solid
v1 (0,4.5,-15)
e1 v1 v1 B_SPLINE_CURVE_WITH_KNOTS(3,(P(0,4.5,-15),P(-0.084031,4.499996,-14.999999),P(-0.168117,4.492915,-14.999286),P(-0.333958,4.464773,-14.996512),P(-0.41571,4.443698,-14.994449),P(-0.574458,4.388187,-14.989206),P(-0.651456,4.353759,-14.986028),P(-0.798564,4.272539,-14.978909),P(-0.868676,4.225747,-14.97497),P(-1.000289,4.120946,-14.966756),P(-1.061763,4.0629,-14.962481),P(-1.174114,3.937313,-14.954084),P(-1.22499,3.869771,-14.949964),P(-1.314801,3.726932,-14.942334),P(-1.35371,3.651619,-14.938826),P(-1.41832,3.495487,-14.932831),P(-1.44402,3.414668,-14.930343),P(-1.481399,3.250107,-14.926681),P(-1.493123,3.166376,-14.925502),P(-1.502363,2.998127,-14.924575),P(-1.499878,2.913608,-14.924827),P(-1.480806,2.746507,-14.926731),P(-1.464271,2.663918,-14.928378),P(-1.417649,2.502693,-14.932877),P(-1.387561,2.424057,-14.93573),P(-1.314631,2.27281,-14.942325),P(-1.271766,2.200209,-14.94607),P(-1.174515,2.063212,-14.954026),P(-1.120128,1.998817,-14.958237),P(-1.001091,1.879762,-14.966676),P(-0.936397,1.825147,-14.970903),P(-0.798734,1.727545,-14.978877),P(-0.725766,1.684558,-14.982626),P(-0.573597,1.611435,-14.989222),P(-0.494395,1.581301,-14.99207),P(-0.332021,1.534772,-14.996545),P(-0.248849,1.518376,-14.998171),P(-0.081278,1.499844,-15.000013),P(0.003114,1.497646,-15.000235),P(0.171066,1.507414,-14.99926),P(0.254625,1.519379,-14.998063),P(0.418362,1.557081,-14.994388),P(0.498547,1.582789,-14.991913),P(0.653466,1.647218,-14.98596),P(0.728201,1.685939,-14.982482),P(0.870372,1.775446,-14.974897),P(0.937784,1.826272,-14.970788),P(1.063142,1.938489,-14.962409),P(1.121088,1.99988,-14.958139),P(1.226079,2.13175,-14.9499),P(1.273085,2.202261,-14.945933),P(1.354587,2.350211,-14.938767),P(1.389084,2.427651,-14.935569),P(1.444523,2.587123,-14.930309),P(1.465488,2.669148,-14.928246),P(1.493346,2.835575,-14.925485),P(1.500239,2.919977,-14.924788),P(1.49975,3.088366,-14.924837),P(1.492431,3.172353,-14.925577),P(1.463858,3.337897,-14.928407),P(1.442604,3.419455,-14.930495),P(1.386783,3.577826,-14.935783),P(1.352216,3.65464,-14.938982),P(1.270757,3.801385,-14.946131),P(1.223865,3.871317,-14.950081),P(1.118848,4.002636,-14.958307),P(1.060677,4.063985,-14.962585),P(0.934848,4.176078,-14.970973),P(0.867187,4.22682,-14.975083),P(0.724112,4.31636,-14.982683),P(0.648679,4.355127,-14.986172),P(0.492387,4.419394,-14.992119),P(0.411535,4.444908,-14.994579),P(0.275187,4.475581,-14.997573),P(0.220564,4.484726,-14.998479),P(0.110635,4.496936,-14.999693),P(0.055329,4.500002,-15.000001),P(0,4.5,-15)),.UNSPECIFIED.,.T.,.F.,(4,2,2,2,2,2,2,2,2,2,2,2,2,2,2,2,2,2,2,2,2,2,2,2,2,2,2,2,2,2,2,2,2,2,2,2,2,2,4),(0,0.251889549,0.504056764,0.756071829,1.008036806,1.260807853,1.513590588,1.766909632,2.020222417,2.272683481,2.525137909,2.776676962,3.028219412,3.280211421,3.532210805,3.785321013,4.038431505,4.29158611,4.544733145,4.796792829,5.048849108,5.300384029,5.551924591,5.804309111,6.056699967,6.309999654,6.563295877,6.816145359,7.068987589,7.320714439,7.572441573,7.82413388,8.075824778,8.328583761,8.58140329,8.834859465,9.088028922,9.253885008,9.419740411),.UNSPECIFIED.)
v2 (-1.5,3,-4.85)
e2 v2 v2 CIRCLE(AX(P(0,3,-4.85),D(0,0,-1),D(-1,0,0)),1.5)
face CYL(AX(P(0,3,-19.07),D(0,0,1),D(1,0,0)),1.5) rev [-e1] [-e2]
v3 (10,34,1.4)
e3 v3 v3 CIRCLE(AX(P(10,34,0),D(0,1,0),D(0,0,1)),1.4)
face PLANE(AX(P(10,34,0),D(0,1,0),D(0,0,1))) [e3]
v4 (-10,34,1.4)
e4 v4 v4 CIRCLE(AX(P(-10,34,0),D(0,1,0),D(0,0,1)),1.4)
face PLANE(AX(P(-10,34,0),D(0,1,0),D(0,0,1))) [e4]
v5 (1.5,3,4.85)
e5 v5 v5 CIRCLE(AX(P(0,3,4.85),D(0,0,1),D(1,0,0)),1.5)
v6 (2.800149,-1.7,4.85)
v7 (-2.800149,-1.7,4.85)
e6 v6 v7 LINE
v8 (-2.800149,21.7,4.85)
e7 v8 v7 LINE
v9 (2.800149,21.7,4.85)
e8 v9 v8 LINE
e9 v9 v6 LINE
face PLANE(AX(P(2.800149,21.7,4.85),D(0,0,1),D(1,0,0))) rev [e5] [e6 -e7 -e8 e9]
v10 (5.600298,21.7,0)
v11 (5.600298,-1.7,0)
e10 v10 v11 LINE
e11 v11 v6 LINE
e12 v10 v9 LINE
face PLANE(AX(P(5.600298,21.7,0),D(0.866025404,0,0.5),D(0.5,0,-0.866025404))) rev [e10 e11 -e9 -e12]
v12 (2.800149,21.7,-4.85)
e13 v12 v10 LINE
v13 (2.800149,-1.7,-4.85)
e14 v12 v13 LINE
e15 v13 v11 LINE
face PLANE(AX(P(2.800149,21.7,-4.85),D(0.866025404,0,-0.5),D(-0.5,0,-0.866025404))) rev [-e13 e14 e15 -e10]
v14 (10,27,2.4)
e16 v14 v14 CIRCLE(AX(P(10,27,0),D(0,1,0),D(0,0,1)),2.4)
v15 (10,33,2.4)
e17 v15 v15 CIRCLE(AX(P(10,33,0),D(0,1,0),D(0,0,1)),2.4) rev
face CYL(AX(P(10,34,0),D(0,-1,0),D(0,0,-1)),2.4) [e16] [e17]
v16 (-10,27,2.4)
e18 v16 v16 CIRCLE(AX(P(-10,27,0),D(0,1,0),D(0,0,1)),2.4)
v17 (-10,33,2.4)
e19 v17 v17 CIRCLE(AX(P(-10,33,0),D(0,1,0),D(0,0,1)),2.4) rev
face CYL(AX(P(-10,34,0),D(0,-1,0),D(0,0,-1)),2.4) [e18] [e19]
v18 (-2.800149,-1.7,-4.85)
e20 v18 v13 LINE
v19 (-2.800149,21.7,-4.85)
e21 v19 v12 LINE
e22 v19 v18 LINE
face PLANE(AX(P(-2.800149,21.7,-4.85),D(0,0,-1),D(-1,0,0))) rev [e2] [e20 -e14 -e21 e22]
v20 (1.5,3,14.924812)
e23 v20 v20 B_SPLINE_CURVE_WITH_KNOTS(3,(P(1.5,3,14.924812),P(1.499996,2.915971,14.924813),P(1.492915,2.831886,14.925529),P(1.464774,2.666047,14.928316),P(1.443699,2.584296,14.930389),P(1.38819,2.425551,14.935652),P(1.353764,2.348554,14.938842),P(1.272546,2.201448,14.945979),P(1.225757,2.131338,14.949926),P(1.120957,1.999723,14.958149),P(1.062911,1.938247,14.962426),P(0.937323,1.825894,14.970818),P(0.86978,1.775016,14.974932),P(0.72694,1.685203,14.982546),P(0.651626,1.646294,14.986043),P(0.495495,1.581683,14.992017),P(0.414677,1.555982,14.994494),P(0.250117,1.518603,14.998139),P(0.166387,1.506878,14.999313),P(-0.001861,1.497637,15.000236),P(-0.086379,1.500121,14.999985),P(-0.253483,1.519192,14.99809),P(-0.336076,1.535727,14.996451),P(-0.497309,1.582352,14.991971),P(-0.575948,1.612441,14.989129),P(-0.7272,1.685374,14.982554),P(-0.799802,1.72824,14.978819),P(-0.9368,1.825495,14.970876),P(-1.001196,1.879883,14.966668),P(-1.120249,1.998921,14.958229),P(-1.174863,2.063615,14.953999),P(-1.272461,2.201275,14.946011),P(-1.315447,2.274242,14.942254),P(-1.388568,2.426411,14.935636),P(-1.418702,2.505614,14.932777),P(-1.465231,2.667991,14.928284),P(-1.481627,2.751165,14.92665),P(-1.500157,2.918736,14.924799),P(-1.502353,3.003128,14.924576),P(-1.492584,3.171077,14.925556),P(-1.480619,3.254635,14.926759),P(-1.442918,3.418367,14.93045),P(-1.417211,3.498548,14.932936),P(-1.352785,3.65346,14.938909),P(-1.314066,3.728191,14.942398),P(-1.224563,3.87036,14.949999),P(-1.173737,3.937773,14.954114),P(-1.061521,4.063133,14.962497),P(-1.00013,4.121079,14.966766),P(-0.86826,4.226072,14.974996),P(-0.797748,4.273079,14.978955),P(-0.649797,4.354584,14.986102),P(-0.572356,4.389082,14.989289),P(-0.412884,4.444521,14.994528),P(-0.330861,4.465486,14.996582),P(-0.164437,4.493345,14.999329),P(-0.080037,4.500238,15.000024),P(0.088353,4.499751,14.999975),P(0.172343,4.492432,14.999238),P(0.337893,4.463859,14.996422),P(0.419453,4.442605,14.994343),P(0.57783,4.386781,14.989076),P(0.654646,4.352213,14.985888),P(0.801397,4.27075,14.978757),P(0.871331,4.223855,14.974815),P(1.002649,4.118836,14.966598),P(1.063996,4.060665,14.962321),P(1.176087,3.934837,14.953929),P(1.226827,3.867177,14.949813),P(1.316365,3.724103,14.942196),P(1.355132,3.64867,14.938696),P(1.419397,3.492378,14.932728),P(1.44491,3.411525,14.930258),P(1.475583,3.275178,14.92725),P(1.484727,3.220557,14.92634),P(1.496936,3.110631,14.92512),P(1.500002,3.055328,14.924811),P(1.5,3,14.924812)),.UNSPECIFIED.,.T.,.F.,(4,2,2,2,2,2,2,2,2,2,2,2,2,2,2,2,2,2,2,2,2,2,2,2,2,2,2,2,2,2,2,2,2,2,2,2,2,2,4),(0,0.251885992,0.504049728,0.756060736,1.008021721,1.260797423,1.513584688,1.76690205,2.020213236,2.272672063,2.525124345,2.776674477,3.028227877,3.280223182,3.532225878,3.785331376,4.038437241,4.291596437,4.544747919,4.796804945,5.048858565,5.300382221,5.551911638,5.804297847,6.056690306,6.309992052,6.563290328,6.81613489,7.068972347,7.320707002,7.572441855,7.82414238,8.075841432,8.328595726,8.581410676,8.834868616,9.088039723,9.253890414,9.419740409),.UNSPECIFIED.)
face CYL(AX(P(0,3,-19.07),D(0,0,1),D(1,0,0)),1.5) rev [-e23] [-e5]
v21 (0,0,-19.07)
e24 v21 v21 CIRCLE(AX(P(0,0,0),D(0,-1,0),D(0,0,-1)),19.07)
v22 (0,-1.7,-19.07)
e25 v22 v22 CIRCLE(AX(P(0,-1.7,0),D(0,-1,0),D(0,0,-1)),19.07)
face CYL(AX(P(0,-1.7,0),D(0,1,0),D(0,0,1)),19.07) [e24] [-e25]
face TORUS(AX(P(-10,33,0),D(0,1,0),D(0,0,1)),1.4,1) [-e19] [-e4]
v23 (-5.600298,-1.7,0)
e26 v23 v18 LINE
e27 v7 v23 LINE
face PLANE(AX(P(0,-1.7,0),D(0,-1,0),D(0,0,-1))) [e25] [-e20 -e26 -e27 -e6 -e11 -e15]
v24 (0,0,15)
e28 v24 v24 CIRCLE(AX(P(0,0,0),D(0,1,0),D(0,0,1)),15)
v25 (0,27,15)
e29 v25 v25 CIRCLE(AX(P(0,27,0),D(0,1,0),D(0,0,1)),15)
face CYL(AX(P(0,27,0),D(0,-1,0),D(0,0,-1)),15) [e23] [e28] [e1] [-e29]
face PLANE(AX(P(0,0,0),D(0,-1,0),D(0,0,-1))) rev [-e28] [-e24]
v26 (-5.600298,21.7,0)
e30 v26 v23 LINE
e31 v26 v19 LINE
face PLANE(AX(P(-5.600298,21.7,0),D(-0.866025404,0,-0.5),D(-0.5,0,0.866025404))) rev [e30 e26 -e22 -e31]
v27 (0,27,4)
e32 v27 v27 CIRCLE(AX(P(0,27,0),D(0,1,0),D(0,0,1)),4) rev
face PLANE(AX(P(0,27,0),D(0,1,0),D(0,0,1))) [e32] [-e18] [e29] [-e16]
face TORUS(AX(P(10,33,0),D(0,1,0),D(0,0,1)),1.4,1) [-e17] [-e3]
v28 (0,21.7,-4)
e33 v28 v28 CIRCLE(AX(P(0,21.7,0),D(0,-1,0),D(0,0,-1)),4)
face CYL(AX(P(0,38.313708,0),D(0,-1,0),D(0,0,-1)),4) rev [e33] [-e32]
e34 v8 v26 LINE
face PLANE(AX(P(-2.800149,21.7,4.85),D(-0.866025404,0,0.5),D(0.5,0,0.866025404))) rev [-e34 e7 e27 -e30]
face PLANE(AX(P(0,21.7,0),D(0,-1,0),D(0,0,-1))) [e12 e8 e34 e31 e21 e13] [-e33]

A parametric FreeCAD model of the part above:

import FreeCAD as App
import Part
import Sketcher
Q = App.Units.Quantity


def edges_at(feature, points):
    """Names of the edges that pass closest to the given points."""
    edges = feature.Shape.Edges
    near = lambda p: min(range(len(edges)), key=lambda i: edges[i].distToShape(Part.Vertex(*p))[0])
    return sorted({f"Edge{near(p) + 1}" for p in points})

doc = App.newDocument("Part")
params = doc.addObject("Spreadsheet::Sheet", "Params")
for row, (alias, value) in enumerate([
    ("sketch1_diameter", "30 mm"),
    ("pad1_length", "27 mm"),
    ("sketch2_diameter", "38.14 mm"),
    ("pad2_length", "1.7 mm"),
    ("pocket1_length", "23.4 mm"),
    ("sketch4_diameter", "8 mm"),
    ("pocket2_length", "5.3 mm"),
    ("sketch5_diameter", "4.8 mm"),
    ("pad3_length", "7 mm"),
    ("fillet_radius", "1 mm"),
    ("sketch6_diameter", "3 mm"),
], start=1):
    params.set(f"A{row}", alias)
    params.set(f"B{row}", "=" + value)
    params.setAlias(f"B{row}", alias)

body = doc.addObject("PartDesign::Body", "Body")

# Sketch on XZ plane
sketch1 = body.newObject("Sketcher::SketchObject", "Sketch")
sketch1.AttachmentSupport = (doc.getObject("XZ_Plane"), [""])
sketch1.MapMode = "FlatFace"
sketch1.addGeometry(Part.Circle(App.Vector(0, 0, 0), App.Vector(0, 0, 1), 15), False)
sketch1.addConstraint([
    Sketcher.Constraint("Coincident", 0, 3, -1, 1),
    Sketcher.Constraint("Diameter", 0, 30.0),
])
sketch1.setExpression("Constraints[1]", "Params.sketch1_diameter")
pad1 = body.newObject("PartDesign::Pad", "Pad")
pad1.Profile = sketch1
pad1.setExpression("Length", "Params.pad1_length")
pad1.Reversed = True

# Sketch on XZ plane
sketch2 = body.newObject("Sketcher::SketchObject", "Sketch001")
sketch2.AttachmentSupport = (doc.getObject("XZ_Plane"), [""])
sketch2.MapMode = "FlatFace"
sketch2.addGeometry(Part.Circle(App.Vector(0, 0, 0), App.Vector(0, 0, 1), 19), False)
sketch2.addConstraint([
    Sketcher.Constraint("Coincident", 0, 3, -1, 1),
    Sketcher.Constraint("Diameter", 0, 38.14),
])
sketch2.setExpression("Constraints[1]", "Params.sketch2_diameter")
pad2 = body.newObject("PartDesign::Pad", "Pad001")
pad2.Profile = sketch2
pad2.setExpression("Length", "Params.pad2_length")

# Sketch on XZ plane
sketch3 = body.newObject("Sketcher::SketchObject", "Sketch002")
sketch3.AttachmentSupport = (doc.getObject("XZ_Plane"), [""])
sketch3.MapMode = "FlatFace"
sketch3.AttachmentOffset = App.Placement(App.Vector(0, 0, 1.7), App.Rotation())
sketch3.addGeometry([
    Part.LineSegment(App.Vector(-3, 5, 0), App.Vector(-6, 0, 0)),  # 0
    Part.LineSegment(App.Vector(-6, 0, 0), App.Vector(-3, -5, 0)),  # 1
    Part.LineSegment(App.Vector(-3, -5, 0), App.Vector(3, -5, 0)),  # 2
    Part.LineSegment(App.Vector(3, -5, 0), App.Vector(6, 0, 0)),  # 3
    Part.LineSegment(App.Vector(6, 0, 0), App.Vector(3, 5, 0)),  # 4
    Part.LineSegment(App.Vector(3, 5, 0), App.Vector(-3, 5, 0)),  # 5
], False)
sketch3.addConstraint([
    Sketcher.Constraint("Coincident", 0, 2, 1, 1),
    Sketcher.Constraint("Coincident", 1, 2, 2, 1),
    Sketcher.Constraint("Coincident", 2, 2, 3, 1),
    Sketcher.Constraint("Coincident", 3, 2, 4, 1),
    Sketcher.Constraint("Coincident", 4, 2, 5, 1),
    Sketcher.Constraint("Coincident", 5, 2, 0, 1),
    Sketcher.Constraint("Horizontal", 2),
    Sketcher.Constraint("Horizontal", 5),
    Sketcher.Constraint("Symmetric", 0, 2, 3, 2, -1, 1),
    Sketcher.Constraint("Symmetric", 1, 2, 4, 2, -1, 1),
    Sketcher.Constraint("PointOnObject", 0, 2, -1),
    Sketcher.Constraint("Parallel", 0, 3),
    Sketcher.Constraint("Vertical", 2, 2, 4, 2),
    Sketcher.Constraint("Angle", 0, Q("-120 deg")),
    Sketcher.Constraint("DistanceY", 2, 2, 4, 2, 9.7),
    Sketcher.Constraint("DistanceX", 2, 1, 2, 2, 5.600298),
])
pocket1 = body.newObject("PartDesign::Pocket", "Pocket")
pocket1.Profile = sketch3
pocket1.setExpression("Length", "Params.pocket1_length")

# Sketch on XZ plane
sketch4 = body.newObject("Sketcher::SketchObject", "Sketch003")
sketch4.AttachmentSupport = (doc.getObject("XZ_Plane"), [""])
sketch4.MapMode = "FlatFace"
sketch4.AttachmentOffset = App.Placement(App.Vector(0, 0, -21.7), App.Rotation())
sketch4.addGeometry(Part.Circle(App.Vector(0, 0, 0), App.Vector(0, 0, 1), 4), False)
sketch4.addConstraint([
    Sketcher.Constraint("Coincident", 0, 3, -1, 1),
    Sketcher.Constraint("Diameter", 0, 8.0),
])
sketch4.setExpression("Constraints[1]", "Params.sketch4_diameter")
pocket2 = body.newObject("PartDesign::Pocket", "Pocket001")
pocket2.Profile = sketch4
pocket2.setExpression("Length", "Params.pocket2_length")

# Sketch on XZ plane
sketch5 = body.newObject("Sketcher::SketchObject", "Sketch004")
sketch5.AttachmentSupport = (doc.getObject("XZ_Plane"), [""])
sketch5.MapMode = "FlatFace"
sketch5.AttachmentOffset = App.Placement(App.Vector(0, 0, -27), App.Rotation())
sketch5.addGeometry([
    Part.Circle(App.Vector(-10, 0, 0), App.Vector(0, 0, 1), 2.4),
    Part.Circle(App.Vector(10, 0, 0), App.Vector(0, 0, 1), 2.4),
], False)
sketch5.addConstraint([
    Sketcher.Constraint("Equal", 0, 1),
    Sketcher.Constraint("Symmetric", 0, 3, 1, 3, -1, 1),
    Sketcher.Constraint("PointOnObject", 0, 3, -1),
    Sketcher.Constraint("Diameter", 0, 4.8),
    Sketcher.Constraint("DistanceX", 0, 3, -1, 1, 10.0),
])
sketch5.setExpression("Constraints[3]", "Params.sketch5_diameter")
pad3 = body.newObject("PartDesign::Pad", "Pad002")
pad3.Profile = sketch5
pad3.setExpression("Length", "Params.pad3_length")
pad3.Reversed = True
doc.recompute()

fillet = body.newObject("PartDesign::Fillet", "Fillet")
fillet.Base = (pad3, edges_at(pad3, [(-10, 34, -2.4), (10, 34, -2.4)]))
fillet.setExpression("Radius", "Params.fillet_radius")

# Sketch on XY plane
sketch6 = body.newObject("Sketcher::SketchObject", "Sketch005")
sketch6.AttachmentSupport = (doc.getObject("XY_Plane"), [""])
sketch6.MapMode = "FlatFace"
sketch6.addGeometry(Part.Circle(App.Vector(0, 3, 0), App.Vector(0, 0, 1), 1.5), False)
sketch6.addConstraint([
    Sketcher.Constraint("PointOnObject", 0, 3, -2),
    Sketcher.Constraint("Diameter", 0, 3.0),
    Sketcher.Constraint("DistanceY", -1, 1, 0, 3, 3.0),
])
sketch6.setExpression("Constraints[1]", "Params.sketch6_diameter")
pocket3 = body.newObject("PartDesign::Pocket", "Pocket002")
pocket3.Profile = sketch6
pocket3.Type = "ThroughAll"
pocket3.Midplane = True

doc.recompute()
